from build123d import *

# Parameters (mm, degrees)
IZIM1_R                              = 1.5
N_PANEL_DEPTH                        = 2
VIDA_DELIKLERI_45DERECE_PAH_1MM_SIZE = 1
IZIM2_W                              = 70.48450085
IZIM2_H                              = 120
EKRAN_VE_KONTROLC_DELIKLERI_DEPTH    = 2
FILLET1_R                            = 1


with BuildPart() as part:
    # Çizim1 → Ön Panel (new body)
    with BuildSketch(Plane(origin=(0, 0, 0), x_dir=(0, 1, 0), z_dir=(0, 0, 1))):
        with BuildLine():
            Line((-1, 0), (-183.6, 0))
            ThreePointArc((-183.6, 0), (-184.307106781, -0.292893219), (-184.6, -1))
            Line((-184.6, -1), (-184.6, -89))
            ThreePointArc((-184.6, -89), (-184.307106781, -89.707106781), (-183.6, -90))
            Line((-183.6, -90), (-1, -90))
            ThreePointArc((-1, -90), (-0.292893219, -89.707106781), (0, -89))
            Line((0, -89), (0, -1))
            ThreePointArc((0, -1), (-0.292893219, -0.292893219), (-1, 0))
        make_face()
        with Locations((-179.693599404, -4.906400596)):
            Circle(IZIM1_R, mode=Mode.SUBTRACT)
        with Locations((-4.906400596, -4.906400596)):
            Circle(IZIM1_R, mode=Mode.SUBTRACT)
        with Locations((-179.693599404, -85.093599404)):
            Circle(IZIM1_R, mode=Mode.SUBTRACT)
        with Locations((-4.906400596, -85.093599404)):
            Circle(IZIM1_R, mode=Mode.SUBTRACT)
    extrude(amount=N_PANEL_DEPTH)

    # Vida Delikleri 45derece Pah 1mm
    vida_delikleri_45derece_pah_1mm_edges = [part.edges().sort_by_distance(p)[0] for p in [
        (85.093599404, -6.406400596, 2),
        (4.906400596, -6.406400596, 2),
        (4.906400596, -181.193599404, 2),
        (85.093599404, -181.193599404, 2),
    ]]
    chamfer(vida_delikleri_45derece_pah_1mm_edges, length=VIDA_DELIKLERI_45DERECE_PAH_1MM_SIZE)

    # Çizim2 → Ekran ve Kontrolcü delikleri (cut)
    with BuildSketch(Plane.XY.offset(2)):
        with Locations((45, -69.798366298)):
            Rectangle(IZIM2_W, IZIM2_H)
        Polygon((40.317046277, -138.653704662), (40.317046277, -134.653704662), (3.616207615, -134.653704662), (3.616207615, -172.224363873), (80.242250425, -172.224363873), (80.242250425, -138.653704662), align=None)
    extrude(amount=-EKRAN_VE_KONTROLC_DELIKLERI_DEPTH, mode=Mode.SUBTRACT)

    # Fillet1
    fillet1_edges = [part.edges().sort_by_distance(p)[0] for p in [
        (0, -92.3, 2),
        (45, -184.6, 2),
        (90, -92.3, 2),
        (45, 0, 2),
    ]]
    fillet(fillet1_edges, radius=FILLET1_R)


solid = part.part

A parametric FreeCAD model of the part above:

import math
import FreeCAD as App
import Part
import Sketcher

V = App.Vector


def edges_at(feature, points):
    """Names of the edges that pass closest to the given points."""
    edges = feature.Shape.Edges
    near = lambda p: min(range(len(edges)), key=lambda i: edges[i].distToShape(Part.Vertex(*p))[0])
    return sorted({f"Edge{near(p) + 1}" for p in points})

doc = App.newDocument("Part")
body = doc.addObject("PartDesign::Body", "Body")

# Sketch on XY plane
sketch1 = doc.addObject("Sketcher::SketchObject", "Sketch")
body.addObject(sketch1)
sketch1.AttachmentSupport = (doc.XY_Plane, [""])
sketch1.MapMode = "FlatFace"
sketch1.addGeometry(Part.LineSegment(V(0, -1, 0), V(0, -183.6, 0)), False)
sketch1.addGeometry(Part.ArcOfCircle(Part.Circle(V(1, -183.6, 0), V(0, 0, 1), 1), math.radians(-180), math.radians(-90)), False)
sketch1.addGeometry(Part.LineSegment(V(1, -184.6, 0), V(89, -184.6, 0)), False)
sketch1.addGeometry(Part.ArcOfCircle(Part.Circle(V(89, -183.6, 0), V(0, 0, 1), 1), math.radians(-90), math.radians(0)), False)
sketch1.addGeometry(Part.LineSegment(V(90, -183.6, 0), V(90, -1, 0)), False)
sketch1.addGeometry(Part.ArcOfCircle(Part.Circle(V(89, -1, 0), V(0, 0, 1), 1), math.radians(0), math.radians(90)), False)
sketch1.addGeometry(Part.LineSegment(V(89, 0, 0), V(1, 0, 0)), False)
sketch1.addGeometry(Part.ArcOfCircle(Part.Circle(V(1, -1, 0), V(0, 0, 1), 1), math.radians(90), math.radians(180)), False)
sketch1.addGeometry(Part.Circle(V(85.1, -179.7, 0), V(0, 0, 1), 1.5), False)
sketch1.addGeometry(Part.Circle(V(85.1, -4.9, 0), V(0, 0, 1), 1.5), False)
sketch1.addGeometry(Part.Circle(V(4.9, -179.7, 0), V(0, 0, 1), 1.5), False)
sketch1.addGeometry(Part.Circle(V(4.9, -4.9, 0), V(0, 0, 1), 1.5), False)
sketch1.addConstraint(Sketcher.Constraint("Tangent", 0, 2, 1, 1))
sketch1.addConstraint(Sketcher.Constraint("Tangent", 1, 2, 2, 1))
sketch1.addConstraint(Sketcher.Constraint("Tangent", 2, 2, 3, 1))
sketch1.addConstraint(Sketcher.Constraint("Tangent", 3, 2, 4, 1))
sketch1.addConstraint(Sketcher.Constraint("Tangent", 4, 2, 5, 1))
sketch1.addConstraint(Sketcher.Constraint("Tangent", 5, 2, 6, 1))
sketch1.addConstraint(Sketcher.Constraint("Tangent", 6, 2, 7, 1))
sketch1.addConstraint(Sketcher.Constraint("Tangent", 7, 2, 0, 1))
sketch1.addConstraint(Sketcher.Constraint("Vertical", 0))
sketch1.addConstraint(Sketcher.Constraint("Horizontal", 2))
sketch1.addConstraint(Sketcher.Constraint("Vertical", 4))
sketch1.addConstraint(Sketcher.Constraint("Horizontal", 6))
sketch1.addConstraint(Sketcher.Constraint("Equal", 1, 3))
sketch1.addConstraint(Sketcher.Constraint("Equal", 3, 5))
sketch1.addConstraint(Sketcher.Constraint("Equal", 5, 7))
sketch1.addConstraint(Sketcher.Constraint("Equal", 8, 9))
sketch1.addConstraint(Sketcher.Constraint("Equal", 9, 10))
sketch1.addConstraint(Sketcher.Constraint("Equal", 10, 11))
sketch1.addConstraint(Sketcher.Constraint("PointOnObject", 0, 2, -2))
sketch1.addConstraint(Sketcher.Constraint("PointOnObject", 5, 2, -1))
sketch1.addConstraint(Sketcher.Constraint("Horizontal", 8, 3, 10, 3))
sketch1.addConstraint(Sketcher.Constraint("Horizontal", 9, 3, 11, 3))
sketch1.addConstraint(Sketcher.Constraint("Vertical", 8, 3, 9, 3))
sketch1.addConstraint(Sketcher.Constraint("Vertical", 10, 3, 11, 3))
sketch1.addConstraint(Sketcher.Constraint("Diameter", 8, 3.0))
sketch1.addConstraint(Sketcher.Constraint("Radius", 1, 1.0))
sketch1.addConstraint(Sketcher.Constraint("DistanceX", 2, 1, 2, 2, 88.0))
sketch1.addConstraint(Sketcher.Constraint("DistanceY", 0, 2, 0, 1, 182.6))
sketch1.addConstraint(Sketcher.Constraint("DistanceX", -1, 1, 8, 3, 85.093599))
sketch1.addConstraint(Sketcher.Constraint("DistanceY", 8, 3, -1, 1, 179.693599))
sketch1.addConstraint(Sketcher.Constraint("DistanceY", 9, 3, -1, 1, 4.906401))
sketch1.addConstraint(Sketcher.Constraint("DistanceX", -1, 1, 10, 3, 4.906401))
pad1 = doc.addObject("PartDesign::Pad", "Pad")
body.addObject(pad1)
pad1.Profile = sketch1
pad1.Length = 2
doc.recompute()

chamfer = doc.addObject("PartDesign::Chamfer", "Chamfer")
body.addObject(chamfer)
chamfer.Base = (pad1, edges_at(pad1, [
    (85.094, -6.406, 2),
    (4.906, -6.406, 2),
    (4.906, -181.194, 2),
    (85.094, -181.194, 2),
]))
chamfer.Size = 1

# Sketch on XY plane
sketch2 = doc.addObject("Sketcher::SketchObject", "Sketch001")
body.addObject(sketch2)
sketch2.AttachmentSupport = (doc.XY_Plane, [""])
sketch2.MapMode = "FlatFace"
sketch2.AttachmentOffset = App.Placement(V(0, 0, 2), App.Rotation())
sketch2.addGeometry(Part.LineSegment(V(9.8, -9.8, 0), V(9.8, -129.8, 0)), False)
sketch2.addGeometry(Part.LineSegment(V(9.8, -129.8, 0), V(80.2, -129.8, 0)), False)
sketch2.addGeometry(Part.LineSegment(V(80.2, -129.8, 0), V(80.2, -9.8, 0)), False)
sketch2.addGeometry(Part.LineSegment(V(80.2, -9.8, 0), V(9.8, -9.8, 0)), False)
sketch2.addGeometry(Part.LineSegment(V(40.3, -138.7, 0), V(40.3, -134.7, 0)), False)
sketch2.addGeometry(Part.LineSegment(V(40.3, -134.7, 0), V(3.6, -134.7, 0)), False)
sketch2.addGeometry(Part.LineSegment(V(3.6, -134.7, 0), V(3.6, -172.2, 0)), False)
sketch2.addGeometry(Part.LineSegment(V(3.6, -172.2, 0), V(80.2, -172.2, 0)), False)
sketch2.addGeometry(Part.LineSegment(V(80.2, -172.2, 0), V(80.2, -138.7, 0)), False)
sketch2.addGeometry(Part.LineSegment(V(80.2, -138.7, 0), V(40.3, -138.7, 0)), False)
sketch2.addConstraint(Sketcher.Constraint("Coincident", 0, 2, 1, 1))
sketch2.addConstraint(Sketcher.Constraint("Coincident", 1, 2, 2, 1))
sketch2.addConstraint(Sketcher.Constraint("Coincident", 2, 2, 3, 1))
sketch2.addConstraint(Sketcher.Constraint("Coincident", 3, 2, 0, 1))
sketch2.addConstraint(Sketcher.Constraint("Coincident", 4, 2, 5, 1))
sketch2.addConstraint(Sketcher.Constraint("Coincident", 5, 2, 6, 1))
sketch2.addConstraint(Sketcher.Constraint("Coincident", 6, 2, 7, 1))
sketch2.addConstraint(Sketcher.Constraint("Coincident", 7, 2, 8, 1))
sketch2.addConstraint(Sketcher.Constraint("Coincident", 8, 2, 9, 1))
sketch2.addConstraint(Sketcher.Constraint("Coincident", 9, 2, 4, 1))
sketch2.addConstraint(Sketcher.Constraint("Vertical", 0))
sketch2.addConstraint(Sketcher.Constraint("Horizontal", 1))
sketch2.addConstraint(Sketcher.Constraint("Vertical", 2))
sketch2.addConstraint(Sketcher.Constraint("Horizontal", 3))
sketch2.addConstraint(Sketcher.Constraint("Vertical", 4))
sketch2.addConstraint(Sketcher.Constraint("Horizontal", 5))
sketch2.addConstraint(Sketcher.Constraint("Vertical", 6))
sketch2.addConstraint(Sketcher.Constraint("Horizontal", 7))
sketch2.addConstraint(Sketcher.Constraint("Vertical", 8))
sketch2.addConstraint(Sketcher.Constraint("Horizontal", 9))
sketch2.addConstraint(Sketcher.Constraint("Vertical", 2, 2, 7, 2))
sketch2.addConstraint(Sketcher.Constraint("DistanceY", 0, 2, 0, 1, 120.0))
sketch2.addConstraint(Sketcher.Constraint("DistanceY", 4, 1, 4, 2, 4.0))
sketch2.addConstraint(Sketcher.Constraint("DistanceX", 1, 1, 1, 2, 70.484501))
sketch2.addConstraint(Sketcher.Constraint("DistanceX", 5, 2, 5, 1, 36.700839))
sketch2.addConstraint(Sketcher.Constraint("DistanceY", 6, 2, 6, 1, 37.570659))
sketch2.addConstraint(Sketcher.Constraint("DistanceX", 7, 1, 7, 2, 76.626043))
sketch2.addConstraint(Sketcher.Constraint("DistanceX", -1, 1, 0, 2, 9.75775))
sketch2.addConstraint(Sketcher.Constraint("DistanceY", 4, 2, 0, 2, 4.855338))
sketch2.addConstraint(Sketcher.Constraint("DistanceY", 0, 2, -1, 1, 129.798366))
pocket1 = doc.addObject("PartDesign::Pocket", "Pocket")
body.addObject(pocket1)
pocket1.Profile = sketch2
pocket1.Length = 2
doc.recompute()

fillet = doc.addObject("PartDesign::Fillet", "Fillet")
body.addObject(fillet)
fillet.Base = (pocket1, edges_at(pocket1, [
    (0, -92.3, 2),
    (45, -184.6, 2),
    (90, -92.3, 2),
    (45, 0, 2),
]))
fillet.Radius = 1

doc.recompute()
